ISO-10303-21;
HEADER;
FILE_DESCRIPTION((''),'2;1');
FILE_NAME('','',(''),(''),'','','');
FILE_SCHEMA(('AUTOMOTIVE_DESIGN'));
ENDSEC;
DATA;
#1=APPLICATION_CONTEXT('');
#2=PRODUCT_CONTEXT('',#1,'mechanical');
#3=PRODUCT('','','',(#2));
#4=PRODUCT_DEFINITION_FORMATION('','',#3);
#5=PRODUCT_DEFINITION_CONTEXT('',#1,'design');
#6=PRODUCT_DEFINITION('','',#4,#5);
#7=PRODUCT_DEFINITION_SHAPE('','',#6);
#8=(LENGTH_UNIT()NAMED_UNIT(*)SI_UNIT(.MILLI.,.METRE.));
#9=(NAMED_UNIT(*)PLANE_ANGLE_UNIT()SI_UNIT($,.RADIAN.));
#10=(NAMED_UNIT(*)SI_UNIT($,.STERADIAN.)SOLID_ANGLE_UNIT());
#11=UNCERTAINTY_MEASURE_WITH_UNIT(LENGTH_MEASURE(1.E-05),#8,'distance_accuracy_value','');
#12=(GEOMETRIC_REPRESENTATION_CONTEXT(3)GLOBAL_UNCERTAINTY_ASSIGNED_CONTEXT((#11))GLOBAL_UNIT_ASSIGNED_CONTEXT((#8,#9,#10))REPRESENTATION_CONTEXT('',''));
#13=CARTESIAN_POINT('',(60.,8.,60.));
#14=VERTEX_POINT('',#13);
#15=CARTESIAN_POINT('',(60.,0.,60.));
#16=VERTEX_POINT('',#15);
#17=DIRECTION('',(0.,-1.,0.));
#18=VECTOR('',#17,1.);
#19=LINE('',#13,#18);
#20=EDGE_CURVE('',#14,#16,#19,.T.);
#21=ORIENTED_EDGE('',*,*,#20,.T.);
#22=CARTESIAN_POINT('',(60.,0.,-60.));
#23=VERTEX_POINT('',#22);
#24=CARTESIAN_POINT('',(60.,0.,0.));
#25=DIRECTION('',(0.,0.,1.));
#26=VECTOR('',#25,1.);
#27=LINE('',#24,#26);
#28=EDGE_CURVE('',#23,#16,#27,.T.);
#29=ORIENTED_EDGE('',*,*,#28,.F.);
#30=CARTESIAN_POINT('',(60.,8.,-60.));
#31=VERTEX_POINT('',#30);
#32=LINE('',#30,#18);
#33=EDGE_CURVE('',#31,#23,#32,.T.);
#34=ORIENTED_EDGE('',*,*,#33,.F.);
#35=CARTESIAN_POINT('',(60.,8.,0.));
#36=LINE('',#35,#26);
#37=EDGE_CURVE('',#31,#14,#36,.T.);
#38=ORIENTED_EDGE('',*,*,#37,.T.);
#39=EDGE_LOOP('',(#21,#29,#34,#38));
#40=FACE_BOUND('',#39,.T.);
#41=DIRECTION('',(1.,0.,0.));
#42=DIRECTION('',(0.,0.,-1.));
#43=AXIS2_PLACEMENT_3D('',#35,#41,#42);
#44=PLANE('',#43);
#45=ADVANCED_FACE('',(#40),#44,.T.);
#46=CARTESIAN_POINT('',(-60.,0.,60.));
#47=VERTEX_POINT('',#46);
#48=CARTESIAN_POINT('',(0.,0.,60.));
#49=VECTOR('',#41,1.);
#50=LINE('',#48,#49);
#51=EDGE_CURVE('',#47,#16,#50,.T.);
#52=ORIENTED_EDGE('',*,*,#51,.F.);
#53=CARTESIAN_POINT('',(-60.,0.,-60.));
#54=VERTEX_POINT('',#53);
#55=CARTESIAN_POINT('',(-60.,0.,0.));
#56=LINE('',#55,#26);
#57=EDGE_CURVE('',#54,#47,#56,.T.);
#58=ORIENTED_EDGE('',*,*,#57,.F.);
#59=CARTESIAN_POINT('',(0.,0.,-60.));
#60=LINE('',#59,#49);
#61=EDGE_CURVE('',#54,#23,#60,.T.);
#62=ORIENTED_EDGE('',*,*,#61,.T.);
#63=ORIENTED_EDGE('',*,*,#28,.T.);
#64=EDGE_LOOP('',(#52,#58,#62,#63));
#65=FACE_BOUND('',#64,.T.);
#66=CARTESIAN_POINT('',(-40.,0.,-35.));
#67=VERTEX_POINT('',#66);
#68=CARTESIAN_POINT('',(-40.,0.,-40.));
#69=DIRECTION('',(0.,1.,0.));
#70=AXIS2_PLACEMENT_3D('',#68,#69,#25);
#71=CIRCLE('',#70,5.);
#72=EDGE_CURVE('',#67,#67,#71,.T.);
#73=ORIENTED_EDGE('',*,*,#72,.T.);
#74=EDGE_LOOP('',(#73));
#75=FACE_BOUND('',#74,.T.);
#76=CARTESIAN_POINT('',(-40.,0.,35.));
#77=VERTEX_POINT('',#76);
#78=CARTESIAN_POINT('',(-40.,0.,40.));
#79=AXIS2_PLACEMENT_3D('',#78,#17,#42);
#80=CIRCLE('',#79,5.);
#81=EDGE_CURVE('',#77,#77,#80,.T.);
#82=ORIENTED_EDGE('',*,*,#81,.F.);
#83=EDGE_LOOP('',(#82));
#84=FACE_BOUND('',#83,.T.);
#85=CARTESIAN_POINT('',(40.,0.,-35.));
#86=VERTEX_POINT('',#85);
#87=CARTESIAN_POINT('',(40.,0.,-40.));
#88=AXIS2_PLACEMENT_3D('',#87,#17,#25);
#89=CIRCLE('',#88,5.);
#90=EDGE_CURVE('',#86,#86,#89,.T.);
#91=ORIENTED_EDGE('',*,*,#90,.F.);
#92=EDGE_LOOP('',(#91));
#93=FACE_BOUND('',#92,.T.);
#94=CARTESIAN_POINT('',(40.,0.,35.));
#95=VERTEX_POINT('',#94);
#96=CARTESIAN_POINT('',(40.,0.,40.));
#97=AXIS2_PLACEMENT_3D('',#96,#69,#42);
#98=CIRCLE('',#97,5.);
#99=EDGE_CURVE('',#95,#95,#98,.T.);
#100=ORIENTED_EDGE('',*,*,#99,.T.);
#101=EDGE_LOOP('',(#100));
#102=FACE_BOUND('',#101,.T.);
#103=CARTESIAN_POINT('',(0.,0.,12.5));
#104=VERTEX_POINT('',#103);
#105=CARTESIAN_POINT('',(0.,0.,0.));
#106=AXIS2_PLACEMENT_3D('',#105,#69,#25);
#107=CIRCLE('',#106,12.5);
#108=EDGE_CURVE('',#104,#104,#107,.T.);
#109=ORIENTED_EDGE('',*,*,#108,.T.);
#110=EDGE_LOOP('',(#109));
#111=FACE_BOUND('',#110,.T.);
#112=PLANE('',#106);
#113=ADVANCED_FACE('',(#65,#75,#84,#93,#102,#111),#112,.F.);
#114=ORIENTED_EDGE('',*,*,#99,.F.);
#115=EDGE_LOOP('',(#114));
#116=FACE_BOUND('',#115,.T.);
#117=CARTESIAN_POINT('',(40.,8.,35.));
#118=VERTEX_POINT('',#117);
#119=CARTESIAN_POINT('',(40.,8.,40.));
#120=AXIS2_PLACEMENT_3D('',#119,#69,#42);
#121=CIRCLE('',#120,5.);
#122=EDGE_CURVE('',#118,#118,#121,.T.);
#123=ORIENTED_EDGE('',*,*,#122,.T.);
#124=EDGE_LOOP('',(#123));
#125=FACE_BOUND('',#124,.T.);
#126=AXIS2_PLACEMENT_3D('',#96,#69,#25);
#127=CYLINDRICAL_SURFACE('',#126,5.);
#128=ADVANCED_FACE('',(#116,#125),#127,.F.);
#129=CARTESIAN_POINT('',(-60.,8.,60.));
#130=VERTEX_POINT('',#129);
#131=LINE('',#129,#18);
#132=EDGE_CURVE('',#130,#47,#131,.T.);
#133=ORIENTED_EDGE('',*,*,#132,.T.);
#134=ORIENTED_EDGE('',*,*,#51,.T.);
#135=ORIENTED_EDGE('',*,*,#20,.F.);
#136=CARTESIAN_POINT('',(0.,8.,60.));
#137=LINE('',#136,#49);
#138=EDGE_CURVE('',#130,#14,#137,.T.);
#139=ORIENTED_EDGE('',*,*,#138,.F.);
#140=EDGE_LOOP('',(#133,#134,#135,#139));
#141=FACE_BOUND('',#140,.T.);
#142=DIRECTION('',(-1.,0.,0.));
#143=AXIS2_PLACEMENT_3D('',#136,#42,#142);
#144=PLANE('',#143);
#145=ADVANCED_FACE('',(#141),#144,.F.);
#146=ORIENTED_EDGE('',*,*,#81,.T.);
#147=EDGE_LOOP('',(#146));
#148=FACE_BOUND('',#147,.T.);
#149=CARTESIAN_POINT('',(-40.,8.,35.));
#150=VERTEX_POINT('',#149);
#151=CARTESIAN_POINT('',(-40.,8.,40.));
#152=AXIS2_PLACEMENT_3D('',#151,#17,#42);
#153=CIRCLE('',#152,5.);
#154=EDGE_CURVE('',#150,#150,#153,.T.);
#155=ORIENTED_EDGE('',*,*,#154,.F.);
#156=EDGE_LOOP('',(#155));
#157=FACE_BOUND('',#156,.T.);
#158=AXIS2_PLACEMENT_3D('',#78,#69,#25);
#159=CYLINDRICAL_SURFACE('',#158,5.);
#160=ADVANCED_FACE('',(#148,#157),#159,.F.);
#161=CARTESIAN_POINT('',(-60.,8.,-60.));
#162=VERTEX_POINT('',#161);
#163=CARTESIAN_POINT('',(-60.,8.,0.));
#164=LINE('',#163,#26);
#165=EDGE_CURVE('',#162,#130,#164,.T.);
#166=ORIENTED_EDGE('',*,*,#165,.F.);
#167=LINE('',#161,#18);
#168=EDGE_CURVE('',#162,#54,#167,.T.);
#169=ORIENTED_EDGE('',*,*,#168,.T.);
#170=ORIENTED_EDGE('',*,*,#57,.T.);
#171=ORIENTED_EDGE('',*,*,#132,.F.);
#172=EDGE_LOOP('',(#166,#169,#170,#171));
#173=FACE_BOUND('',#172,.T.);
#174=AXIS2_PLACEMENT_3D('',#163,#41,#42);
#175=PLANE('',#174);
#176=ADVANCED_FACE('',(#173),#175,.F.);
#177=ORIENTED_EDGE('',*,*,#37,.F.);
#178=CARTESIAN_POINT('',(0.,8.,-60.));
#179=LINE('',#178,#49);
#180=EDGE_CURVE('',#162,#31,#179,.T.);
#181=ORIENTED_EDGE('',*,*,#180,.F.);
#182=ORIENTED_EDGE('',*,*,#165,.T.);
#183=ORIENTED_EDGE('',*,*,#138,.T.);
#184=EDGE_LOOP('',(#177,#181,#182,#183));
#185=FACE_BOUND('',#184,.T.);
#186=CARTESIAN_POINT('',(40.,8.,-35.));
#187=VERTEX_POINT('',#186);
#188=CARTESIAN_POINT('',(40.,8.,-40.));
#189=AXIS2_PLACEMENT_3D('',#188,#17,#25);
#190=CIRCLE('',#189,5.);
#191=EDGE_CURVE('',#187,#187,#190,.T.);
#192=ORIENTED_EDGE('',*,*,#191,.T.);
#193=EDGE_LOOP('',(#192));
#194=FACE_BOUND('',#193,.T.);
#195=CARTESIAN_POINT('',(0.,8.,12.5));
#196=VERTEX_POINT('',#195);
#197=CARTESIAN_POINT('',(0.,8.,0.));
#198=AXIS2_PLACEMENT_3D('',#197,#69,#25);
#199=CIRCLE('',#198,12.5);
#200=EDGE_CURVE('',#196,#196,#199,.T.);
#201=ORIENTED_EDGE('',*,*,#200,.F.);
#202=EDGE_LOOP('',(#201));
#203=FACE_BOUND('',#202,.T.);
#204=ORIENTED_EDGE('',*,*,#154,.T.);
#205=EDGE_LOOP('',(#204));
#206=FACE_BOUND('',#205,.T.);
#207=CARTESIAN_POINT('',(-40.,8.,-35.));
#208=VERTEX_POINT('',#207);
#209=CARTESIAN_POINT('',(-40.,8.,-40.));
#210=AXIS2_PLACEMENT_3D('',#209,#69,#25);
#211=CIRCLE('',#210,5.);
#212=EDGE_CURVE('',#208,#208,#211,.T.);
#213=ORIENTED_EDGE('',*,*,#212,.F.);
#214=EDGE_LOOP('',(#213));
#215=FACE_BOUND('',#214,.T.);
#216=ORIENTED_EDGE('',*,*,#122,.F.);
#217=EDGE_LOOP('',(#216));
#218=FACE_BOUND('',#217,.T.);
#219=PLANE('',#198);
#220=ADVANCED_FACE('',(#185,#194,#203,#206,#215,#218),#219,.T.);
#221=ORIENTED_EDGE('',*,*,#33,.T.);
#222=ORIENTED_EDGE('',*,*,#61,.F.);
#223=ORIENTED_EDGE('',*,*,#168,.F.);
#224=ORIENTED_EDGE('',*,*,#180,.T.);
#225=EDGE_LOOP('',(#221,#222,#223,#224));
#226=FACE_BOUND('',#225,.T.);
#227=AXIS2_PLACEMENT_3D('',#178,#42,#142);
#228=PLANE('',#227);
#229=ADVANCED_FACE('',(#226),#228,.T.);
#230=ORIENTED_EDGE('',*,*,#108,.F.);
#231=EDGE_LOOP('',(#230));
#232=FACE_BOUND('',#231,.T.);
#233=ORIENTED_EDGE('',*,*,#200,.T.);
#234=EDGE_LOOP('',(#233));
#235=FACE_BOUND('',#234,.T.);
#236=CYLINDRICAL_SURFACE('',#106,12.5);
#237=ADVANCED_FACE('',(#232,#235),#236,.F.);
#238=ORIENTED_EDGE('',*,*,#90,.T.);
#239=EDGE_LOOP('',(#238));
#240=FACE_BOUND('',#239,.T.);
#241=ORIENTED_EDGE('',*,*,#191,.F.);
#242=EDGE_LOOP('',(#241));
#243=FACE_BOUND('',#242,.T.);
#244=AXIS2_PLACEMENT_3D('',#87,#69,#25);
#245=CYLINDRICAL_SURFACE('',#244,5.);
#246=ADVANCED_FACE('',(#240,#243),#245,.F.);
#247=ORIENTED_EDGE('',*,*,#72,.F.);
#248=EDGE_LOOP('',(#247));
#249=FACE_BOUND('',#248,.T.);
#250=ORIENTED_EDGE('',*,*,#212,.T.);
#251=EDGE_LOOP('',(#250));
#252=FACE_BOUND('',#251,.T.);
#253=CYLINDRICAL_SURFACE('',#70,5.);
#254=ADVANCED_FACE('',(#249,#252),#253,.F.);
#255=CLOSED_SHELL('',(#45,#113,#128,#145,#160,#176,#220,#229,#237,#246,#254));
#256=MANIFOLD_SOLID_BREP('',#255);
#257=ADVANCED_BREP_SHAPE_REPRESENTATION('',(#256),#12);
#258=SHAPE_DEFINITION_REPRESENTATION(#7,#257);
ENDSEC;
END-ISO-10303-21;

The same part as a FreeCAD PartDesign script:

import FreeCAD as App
import Part
import Sketcher
from FreeCAD import Vector
Q = App.Units.Quantity

doc = App.newDocument("Part")
body = doc.addObject("PartDesign::Body", "Body")

# Sketch on XZ plane
sketch1 = doc.addObject("Sketcher::SketchObject", "Sketch")
body.addObject(sketch1)
sketch1.AttachmentSupport = (doc.XZ_Plane, [""])
sketch1.MapMode = "FlatFace"
sketch1.addGeometry([
    Part.LineSegment(Vector(60, -60, 0), Vector(-60, -60, 0)),
    Part.LineSegment(Vector(-60, -60, 0), Vector(-60, 60, 0)),
    Part.LineSegment(Vector(-60, 60, 0), Vector(60, 60, 0)),
    Part.LineSegment(Vector(60, 60, 0), Vector(60, -60, 0)),
], False)
sketch1.addConstraint([
    Sketcher.Constraint("Coincident", 0, 2, 1, 1),
    Sketcher.Constraint("Coincident", 1, 2, 2, 1),
    Sketcher.Constraint("Coincident", 2, 2, 3, 1),
    Sketcher.Constraint("Coincident", 3, 2, 0, 1),
    Sketcher.Constraint("Horizontal", 0),
    Sketcher.Constraint("Vertical", 1),
    Sketcher.Constraint("Horizontal", 2),
    Sketcher.Constraint("Vertical", 3),
    Sketcher.Constraint("Symmetric", 0, 2, 2, 2, -1, 1),
    Sketcher.Constraint("Equal", 2, 1),
    Sketcher.Constraint("DistanceX", 0, 2, 0, 1, Q("120 mm")),
])
pad1 = doc.addObject("PartDesign::Pad", "Pad")
body.addObject(pad1)
pad1.Profile = sketch1
pad1.Length = 8
pad1.Reversed = True

# Sketch on XZ plane
sketch2 = doc.addObject("Sketcher::SketchObject", "Sketch001")
body.addObject(sketch2)
sketch2.AttachmentSupport = (doc.XZ_Plane, [""])
sketch2.MapMode = "FlatFace"
sketch2.AttachmentOffset = App.Placement(Vector(0, 0, -8), App.Rotation())
sketch2.addGeometry(Part.Circle(Vector(0, 0, 0), Vector(0, 0, 1), 12), False)
sketch2.addConstraint([
    Sketcher.Constraint("Coincident", 0, 3, -1, 1),
    Sketcher.Constraint("Diameter", 0, Q("25 mm")),
])
pocket1 = doc.addObject("PartDesign::Pocket", "Pocket")
body.addObject(pocket1)
pocket1.Profile = sketch2
pocket1.Type = "ThroughAll"
pocket1.Reversed = True

# Sketch on XZ plane
sketch3 = doc.addObject("Sketcher::SketchObject", "Sketch002")
body.addObject(sketch3)
sketch3.AttachmentSupport = (doc.XZ_Plane, [""])
sketch3.MapMode = "FlatFace"
sketch3.AttachmentOffset = App.Placement(Vector(0, 0, -8), App.Rotation())
sketch3.addGeometry(Part.Circle(Vector(-40, -40, 0), Vector(0, 0, 1), 5), False)
sketch3.addConstraint([
    Sketcher.Constraint("Diameter", 0, Q("10 mm")),
    Sketcher.Constraint("DistanceX", 0, 3, -1, 1, Q("40 mm")),
    Sketcher.Constraint("DistanceY", 0, 3, -1, 1, Q("40 mm")),
])
pocket2 = doc.addObject("PartDesign::Pocket", "Pocket001")
body.addObject(pocket2)
pocket2.Profile = sketch3
pocket2.Type = "ThroughAll"
pocket2.Reversed = True
doc.recompute()

mirrored = doc.addObject("PartDesign::Mirrored", "Mirrored")
body.addObject(mirrored)
mirrored.Originals = [pocket2]
mirrored.MirrorPlane = (doc.YZ_Plane, [""])
body.Tip = mirrored
doc.recompute()

mirrored2 = doc.addObject("PartDesign::Mirrored", "Mirrored001")
body.addObject(mirrored2)
mirrored2.Originals = [pocket2]
mirrored2.MirrorPlane = (doc.XY_Plane, [""])
body.Tip = mirrored2

# Sketch on XZ plane
sketch4 = doc.addObject("Sketcher::SketchObject", "Sketch003")
body.addObject(sketch4)
sketch4.AttachmentSupport = (doc.XZ_Plane, [""])
sketch4.MapMode = "FlatFace"
sketch4.AttachmentOffset = App.Placement(Vector(0, 0, -8), App.Rotation())
sketch4.addGeometry(Part.Circle(Vector(40, 40, 0), Vector(0, 0, 1), 5), False)
sketch4.addConstraint([
    Sketcher.Constraint("Diameter", 0, Q("10 mm")),
    Sketcher.Constraint("DistanceX", -1, 1, 0, 3, Q("40 mm")),
    Sketcher.Constraint("DistanceY", -1, 1, 0, 3, Q("40 mm")),
])
pocket3 = doc.addObject("PartDesign::Pocket", "Pocket002")
body.addObject(pocket3)
pocket3.Profile = sketch4
pocket3.Type = "ThroughAll"
pocket3.Reversed = True

doc.recompute()
